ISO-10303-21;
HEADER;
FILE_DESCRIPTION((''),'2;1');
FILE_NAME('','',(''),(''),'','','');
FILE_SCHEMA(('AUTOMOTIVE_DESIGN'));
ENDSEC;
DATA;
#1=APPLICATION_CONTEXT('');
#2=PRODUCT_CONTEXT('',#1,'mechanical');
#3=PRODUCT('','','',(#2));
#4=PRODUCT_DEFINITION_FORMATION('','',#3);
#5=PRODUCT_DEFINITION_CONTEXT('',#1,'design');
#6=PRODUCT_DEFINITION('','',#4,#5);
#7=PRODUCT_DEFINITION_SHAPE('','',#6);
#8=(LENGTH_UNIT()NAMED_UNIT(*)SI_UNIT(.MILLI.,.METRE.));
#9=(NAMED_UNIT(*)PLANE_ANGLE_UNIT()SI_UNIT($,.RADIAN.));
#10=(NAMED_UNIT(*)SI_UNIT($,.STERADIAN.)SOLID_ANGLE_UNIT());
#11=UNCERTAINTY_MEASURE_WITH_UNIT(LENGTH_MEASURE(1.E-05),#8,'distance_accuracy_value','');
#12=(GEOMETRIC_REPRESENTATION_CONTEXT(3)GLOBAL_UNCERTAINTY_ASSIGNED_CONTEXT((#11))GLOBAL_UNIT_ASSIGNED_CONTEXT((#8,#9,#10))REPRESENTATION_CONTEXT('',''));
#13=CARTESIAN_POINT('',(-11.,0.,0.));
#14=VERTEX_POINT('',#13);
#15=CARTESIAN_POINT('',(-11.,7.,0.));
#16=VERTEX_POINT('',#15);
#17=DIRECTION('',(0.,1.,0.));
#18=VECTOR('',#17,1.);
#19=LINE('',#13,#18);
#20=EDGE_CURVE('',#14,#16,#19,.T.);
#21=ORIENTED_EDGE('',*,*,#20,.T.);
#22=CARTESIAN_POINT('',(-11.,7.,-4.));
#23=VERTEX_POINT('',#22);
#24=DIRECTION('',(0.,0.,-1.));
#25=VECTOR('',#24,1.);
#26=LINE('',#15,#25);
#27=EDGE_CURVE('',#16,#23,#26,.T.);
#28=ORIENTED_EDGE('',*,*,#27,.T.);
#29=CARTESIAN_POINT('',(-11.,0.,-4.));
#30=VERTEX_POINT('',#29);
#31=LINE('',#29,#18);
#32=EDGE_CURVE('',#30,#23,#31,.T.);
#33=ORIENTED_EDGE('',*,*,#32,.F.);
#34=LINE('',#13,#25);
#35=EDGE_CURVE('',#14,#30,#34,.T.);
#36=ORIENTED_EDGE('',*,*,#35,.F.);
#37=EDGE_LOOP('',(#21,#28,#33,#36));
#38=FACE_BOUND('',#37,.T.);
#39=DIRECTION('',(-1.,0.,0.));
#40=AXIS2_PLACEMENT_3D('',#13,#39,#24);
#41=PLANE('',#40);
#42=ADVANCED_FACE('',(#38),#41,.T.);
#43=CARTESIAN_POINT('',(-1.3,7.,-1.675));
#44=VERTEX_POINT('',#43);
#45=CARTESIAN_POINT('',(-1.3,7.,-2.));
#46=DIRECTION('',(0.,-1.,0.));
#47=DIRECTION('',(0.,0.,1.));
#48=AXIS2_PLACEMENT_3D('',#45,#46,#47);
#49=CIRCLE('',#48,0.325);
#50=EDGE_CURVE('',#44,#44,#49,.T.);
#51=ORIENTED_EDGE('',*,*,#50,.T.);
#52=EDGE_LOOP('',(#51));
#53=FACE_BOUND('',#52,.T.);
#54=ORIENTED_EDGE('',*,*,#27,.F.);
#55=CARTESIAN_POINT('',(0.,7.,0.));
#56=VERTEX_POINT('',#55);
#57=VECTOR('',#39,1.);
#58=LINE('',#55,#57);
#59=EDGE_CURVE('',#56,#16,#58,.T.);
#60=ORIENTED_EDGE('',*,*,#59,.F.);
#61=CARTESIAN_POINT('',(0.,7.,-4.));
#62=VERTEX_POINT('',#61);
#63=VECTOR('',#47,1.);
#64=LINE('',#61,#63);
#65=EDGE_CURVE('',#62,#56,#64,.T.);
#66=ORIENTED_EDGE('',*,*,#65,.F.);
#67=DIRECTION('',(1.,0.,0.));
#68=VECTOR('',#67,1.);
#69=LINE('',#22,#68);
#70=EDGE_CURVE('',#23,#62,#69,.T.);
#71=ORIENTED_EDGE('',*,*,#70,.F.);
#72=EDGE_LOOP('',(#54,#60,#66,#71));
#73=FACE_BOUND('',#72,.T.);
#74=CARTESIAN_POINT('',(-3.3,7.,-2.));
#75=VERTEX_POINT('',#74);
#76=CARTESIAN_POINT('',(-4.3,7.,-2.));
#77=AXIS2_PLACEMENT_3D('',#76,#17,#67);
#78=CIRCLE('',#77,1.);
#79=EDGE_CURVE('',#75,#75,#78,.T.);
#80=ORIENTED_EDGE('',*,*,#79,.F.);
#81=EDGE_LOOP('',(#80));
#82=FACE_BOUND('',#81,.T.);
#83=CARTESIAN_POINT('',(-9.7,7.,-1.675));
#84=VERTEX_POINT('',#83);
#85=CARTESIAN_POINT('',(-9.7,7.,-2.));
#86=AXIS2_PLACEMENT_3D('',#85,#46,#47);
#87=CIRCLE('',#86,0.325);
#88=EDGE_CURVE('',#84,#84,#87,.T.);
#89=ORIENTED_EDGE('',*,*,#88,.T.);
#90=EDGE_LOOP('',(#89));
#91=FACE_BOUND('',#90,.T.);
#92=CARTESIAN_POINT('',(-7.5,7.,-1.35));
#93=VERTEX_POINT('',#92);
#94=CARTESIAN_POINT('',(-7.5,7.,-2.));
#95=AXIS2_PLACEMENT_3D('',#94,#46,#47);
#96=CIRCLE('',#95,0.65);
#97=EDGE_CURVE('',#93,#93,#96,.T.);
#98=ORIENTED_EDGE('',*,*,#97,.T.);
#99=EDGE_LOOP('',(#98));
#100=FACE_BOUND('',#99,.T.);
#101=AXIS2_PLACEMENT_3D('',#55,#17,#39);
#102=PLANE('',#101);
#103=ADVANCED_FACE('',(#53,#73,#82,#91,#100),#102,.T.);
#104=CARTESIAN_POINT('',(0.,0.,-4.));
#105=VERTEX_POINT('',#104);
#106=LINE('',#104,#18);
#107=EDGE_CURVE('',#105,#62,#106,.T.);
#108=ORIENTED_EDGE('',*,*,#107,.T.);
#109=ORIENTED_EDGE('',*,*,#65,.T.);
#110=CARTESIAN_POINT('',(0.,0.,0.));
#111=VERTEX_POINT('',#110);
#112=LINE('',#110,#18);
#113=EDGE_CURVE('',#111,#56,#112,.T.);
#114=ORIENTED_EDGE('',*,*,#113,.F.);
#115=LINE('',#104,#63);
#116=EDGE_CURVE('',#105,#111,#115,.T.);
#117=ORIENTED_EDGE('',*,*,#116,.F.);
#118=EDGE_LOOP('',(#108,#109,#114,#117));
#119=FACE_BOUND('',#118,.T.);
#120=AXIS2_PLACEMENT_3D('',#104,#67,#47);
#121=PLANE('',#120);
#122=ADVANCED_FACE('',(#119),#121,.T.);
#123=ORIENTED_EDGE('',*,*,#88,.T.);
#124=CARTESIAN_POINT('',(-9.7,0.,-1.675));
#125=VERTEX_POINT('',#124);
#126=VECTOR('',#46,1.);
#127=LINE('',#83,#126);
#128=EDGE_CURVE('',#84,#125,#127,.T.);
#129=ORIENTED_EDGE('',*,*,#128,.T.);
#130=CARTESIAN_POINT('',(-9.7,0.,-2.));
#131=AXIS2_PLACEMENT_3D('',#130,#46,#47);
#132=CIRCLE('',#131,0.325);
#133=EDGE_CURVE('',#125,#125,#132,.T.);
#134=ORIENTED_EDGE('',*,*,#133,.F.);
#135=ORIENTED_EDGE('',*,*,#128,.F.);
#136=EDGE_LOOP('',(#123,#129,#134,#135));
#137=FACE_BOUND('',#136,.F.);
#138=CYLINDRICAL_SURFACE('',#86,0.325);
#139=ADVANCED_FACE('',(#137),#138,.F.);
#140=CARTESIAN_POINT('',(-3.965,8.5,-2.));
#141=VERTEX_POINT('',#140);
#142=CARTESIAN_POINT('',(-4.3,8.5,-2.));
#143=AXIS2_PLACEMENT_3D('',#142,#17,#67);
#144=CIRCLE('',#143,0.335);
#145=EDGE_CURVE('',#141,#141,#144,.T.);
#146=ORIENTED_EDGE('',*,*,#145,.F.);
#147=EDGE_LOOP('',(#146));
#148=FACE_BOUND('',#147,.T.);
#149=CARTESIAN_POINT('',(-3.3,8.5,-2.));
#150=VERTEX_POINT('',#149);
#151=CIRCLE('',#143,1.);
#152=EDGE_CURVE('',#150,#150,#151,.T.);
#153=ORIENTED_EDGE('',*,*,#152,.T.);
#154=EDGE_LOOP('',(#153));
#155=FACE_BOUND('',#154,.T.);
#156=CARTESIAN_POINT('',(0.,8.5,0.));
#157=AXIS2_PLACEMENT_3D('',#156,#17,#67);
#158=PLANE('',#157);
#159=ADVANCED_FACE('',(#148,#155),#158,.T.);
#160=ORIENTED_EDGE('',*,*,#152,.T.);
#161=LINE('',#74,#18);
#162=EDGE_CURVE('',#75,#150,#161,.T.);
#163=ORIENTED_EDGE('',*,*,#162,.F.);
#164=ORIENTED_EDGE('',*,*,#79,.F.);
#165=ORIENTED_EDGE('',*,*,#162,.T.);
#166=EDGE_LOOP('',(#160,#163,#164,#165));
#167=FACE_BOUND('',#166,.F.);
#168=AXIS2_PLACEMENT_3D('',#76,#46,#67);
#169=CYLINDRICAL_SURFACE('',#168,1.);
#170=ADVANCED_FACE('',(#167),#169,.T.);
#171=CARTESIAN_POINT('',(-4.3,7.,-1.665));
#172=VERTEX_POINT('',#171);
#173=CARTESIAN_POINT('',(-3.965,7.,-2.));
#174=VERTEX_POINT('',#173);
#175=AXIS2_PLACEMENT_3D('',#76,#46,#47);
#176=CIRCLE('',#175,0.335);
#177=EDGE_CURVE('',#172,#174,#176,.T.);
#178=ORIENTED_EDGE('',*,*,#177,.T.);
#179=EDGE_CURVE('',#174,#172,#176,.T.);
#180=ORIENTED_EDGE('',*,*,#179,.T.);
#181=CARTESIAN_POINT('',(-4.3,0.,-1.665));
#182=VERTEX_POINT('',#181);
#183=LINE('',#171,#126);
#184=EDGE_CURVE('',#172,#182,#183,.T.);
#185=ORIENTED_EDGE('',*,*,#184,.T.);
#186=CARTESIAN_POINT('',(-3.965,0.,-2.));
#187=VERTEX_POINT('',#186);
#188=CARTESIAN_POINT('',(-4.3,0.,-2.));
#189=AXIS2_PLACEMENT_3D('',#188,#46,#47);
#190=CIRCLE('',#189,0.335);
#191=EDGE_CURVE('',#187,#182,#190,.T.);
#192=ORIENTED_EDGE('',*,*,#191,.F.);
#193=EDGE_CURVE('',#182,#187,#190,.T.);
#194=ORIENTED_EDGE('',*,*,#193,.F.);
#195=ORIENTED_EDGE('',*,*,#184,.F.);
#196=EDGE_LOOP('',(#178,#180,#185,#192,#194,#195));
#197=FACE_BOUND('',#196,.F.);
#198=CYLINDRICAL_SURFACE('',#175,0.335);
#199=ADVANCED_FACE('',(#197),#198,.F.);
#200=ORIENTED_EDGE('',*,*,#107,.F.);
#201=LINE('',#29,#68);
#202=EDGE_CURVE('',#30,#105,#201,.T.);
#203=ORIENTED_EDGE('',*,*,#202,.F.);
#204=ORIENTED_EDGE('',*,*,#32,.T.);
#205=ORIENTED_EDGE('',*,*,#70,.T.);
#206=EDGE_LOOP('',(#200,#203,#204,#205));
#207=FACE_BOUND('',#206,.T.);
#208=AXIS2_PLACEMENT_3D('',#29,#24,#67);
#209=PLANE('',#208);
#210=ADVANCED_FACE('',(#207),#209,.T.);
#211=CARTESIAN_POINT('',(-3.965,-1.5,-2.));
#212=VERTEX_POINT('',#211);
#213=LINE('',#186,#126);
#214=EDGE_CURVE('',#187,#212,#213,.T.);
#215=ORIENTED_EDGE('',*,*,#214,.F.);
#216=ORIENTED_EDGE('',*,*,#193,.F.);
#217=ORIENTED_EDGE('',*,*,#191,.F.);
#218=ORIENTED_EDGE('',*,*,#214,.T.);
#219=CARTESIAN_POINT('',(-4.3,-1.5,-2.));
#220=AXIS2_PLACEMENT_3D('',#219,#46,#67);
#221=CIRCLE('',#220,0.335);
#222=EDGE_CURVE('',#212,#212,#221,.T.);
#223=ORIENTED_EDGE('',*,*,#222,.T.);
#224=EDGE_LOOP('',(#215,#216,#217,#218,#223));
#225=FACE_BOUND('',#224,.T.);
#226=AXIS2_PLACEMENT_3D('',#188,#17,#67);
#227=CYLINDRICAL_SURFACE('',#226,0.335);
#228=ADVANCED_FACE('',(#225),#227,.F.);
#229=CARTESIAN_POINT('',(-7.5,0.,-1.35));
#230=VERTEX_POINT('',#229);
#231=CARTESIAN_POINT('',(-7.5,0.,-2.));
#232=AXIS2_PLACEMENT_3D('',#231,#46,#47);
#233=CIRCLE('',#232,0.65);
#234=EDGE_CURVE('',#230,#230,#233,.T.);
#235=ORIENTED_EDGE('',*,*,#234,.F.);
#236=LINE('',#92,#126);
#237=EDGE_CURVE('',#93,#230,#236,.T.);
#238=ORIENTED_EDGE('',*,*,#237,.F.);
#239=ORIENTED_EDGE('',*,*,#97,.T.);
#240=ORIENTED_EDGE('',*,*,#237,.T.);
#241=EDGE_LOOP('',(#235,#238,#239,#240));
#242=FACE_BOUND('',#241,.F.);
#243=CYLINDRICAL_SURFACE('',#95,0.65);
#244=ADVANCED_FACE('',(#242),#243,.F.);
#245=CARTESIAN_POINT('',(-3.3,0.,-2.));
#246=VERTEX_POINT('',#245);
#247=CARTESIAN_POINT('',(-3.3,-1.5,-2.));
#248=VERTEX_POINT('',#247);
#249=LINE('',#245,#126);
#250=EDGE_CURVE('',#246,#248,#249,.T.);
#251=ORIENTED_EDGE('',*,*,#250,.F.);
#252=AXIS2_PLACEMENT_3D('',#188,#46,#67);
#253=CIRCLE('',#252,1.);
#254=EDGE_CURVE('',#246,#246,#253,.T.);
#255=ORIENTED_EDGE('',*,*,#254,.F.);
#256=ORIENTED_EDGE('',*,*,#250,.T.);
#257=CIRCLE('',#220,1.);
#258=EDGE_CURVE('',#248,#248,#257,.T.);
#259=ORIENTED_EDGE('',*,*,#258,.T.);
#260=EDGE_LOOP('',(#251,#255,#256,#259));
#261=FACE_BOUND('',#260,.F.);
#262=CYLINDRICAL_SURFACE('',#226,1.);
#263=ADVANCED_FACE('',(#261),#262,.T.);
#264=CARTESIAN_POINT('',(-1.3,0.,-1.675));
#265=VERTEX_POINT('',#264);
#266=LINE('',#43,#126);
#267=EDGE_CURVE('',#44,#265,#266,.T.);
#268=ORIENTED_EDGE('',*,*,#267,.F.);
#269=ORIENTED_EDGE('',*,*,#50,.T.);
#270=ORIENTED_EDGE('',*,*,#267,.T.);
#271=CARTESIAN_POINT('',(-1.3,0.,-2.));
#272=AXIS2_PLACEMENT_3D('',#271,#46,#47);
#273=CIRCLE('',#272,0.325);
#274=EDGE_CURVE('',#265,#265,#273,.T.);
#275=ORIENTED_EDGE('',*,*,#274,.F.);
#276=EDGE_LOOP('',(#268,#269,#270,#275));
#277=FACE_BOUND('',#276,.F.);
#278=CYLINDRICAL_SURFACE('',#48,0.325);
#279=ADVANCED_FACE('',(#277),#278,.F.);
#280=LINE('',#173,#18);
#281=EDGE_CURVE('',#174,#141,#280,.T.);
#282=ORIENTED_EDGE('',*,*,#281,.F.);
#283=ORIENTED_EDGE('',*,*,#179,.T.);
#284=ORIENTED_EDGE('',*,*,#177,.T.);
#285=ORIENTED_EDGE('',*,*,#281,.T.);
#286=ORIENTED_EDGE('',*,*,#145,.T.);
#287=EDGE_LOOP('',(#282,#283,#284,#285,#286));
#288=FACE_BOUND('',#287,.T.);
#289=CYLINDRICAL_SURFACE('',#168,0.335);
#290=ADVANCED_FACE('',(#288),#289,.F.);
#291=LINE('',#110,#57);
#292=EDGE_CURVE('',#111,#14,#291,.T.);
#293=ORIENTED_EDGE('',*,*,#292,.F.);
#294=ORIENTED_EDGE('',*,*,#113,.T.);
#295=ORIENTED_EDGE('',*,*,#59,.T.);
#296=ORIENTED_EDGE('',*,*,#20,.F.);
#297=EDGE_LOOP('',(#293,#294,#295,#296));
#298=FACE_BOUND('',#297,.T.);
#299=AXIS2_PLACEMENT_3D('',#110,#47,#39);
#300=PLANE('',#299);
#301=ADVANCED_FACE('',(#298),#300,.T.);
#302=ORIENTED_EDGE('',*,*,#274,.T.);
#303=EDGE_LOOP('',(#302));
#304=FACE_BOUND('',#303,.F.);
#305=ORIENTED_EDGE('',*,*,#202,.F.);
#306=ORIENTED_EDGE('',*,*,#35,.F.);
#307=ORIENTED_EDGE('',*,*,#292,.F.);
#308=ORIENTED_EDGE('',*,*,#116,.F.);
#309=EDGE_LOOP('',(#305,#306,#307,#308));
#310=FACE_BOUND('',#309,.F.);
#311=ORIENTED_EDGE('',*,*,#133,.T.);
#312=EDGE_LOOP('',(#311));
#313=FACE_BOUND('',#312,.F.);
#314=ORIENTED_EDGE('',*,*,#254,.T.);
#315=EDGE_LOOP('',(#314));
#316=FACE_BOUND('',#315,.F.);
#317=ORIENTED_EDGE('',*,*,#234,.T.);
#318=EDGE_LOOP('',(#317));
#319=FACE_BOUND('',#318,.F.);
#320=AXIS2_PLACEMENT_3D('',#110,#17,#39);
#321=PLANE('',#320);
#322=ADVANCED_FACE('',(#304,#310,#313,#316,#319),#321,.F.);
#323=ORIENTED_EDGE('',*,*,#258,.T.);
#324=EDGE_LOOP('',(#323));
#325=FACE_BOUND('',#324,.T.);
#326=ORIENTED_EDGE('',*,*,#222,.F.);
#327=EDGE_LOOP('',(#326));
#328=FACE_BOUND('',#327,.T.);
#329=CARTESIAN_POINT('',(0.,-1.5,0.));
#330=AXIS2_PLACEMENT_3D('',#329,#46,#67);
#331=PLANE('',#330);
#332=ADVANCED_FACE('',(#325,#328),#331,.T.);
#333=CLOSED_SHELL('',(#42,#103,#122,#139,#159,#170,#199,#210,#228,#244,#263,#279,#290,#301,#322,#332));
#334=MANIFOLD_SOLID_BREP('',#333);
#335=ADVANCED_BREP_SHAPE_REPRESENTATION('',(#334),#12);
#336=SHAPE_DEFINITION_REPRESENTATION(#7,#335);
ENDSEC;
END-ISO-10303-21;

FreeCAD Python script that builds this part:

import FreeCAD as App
import Part
import Sketcher
from FreeCAD import Vector


def add_polygon(sketch, points):
    """Adds a closed chain of lines whose ends are joined by coincident constraints."""
    first, n = sketch.GeometryCount, len(points)
    for a, b in zip(points, points[1:] + points[:1]):
        sketch.addGeometry(Part.LineSegment(App.Vector(*a, 0), App.Vector(*b, 0)), False)
    for i in range(n):
        sketch.addConstraint(Sketcher.Constraint("Coincident", first + i, 2, first + (i + 1) % n, 1))

doc = App.newDocument("Part")
params = doc.addObject("Spreadsheet::Sheet", "Params")
for row, (alias, value) in enumerate([
    ("sketch1_width", "11 mm"),
    ("sketch1_height", "4 mm"),
    ("pad1_length", "7 mm"),
    ("sketch2_diameter", "0.65 mm"),
    ("hole_diameter", "0.65 mm"),
    ("sketch3_diameter", "1.3 mm"),
    ("hole2_diameter", "1.3 mm"),
    ("sketch4_diameter", "0.67 mm"),
    ("hole3_diameter", "0.67 mm"),
    ("sketch5_diameter", "2 mm"),
    ("sketch5_diameter2", "0.67 mm"),
    ("pad2_length", "1.5 mm"),
    ("sketch6_diameter", "2 mm"),
    ("sketch6_diameter2", "0.67 mm"),
    ("pad3_length", "1.5 mm"),
], start=1):
    params.set(f"A{row}", alias)
    params.set(f"B{row}", "=" + value)
    params.setAlias(f"B{row}", alias)

body = doc.addObject("PartDesign::Body", "Body")

sketch1 = body.newObject("Sketcher::SketchObject", "Sketch")
sketch1.AttachmentSupport = (doc.getObject("XZ_Plane"), [""])
sketch1.MapMode = "FlatFace"
add_polygon(sketch1, [(-11, 0), (0, 0), (0, -4), (-11, -4)])
sketch1.addConstraint(Sketcher.Constraint("Horizontal", 0))
sketch1.addConstraint(Sketcher.Constraint("Vertical", 1))
sketch1.addConstraint(Sketcher.Constraint("Horizontal", 2))
sketch1.addConstraint(Sketcher.Constraint("Vertical", 3))
sketch1.addConstraint(Sketcher.Constraint("Coincident", 0, 2, -1, 1))
sketch1.addConstraint(Sketcher.Constraint("DistanceX", 0, 1, 0, 2, 11.0))
sketch1.addConstraint(Sketcher.Constraint("DistanceY", 1, 2, 1, 1, 4.0))
sketch1.setExpression("Constraints[9]", "Params.sketch1_width")
sketch1.setExpression("Constraints[10]", "Params.sketch1_height")
pad1 = body.newObject("PartDesign::Pad", "Pad")
pad1.Profile = sketch1
pad1.setExpression("Length", "Params.pad1_length")
pad1.Reversed = True

sketch2 = body.newObject("Sketcher::SketchObject", "Sketch001")
sketch2.AttachmentSupport = (doc.getObject("XZ_Plane"), [""])
sketch2.MapMode = "FlatFace"
sketch2.AttachmentOffset = App.Placement(Vector(0, 0, -7), App.Rotation())
sketch2.addGeometry(Part.Circle(Vector(-9.7, -2, 0), Vector(0, 0, 1), 0.33), False)
sketch2.addGeometry(Part.Circle(Vector(-1.3, -2, 0), Vector(0, 0, 1), 0.33), False)
sketch2.addConstraint(Sketcher.Constraint("Equal", 0, 1))
sketch2.addConstraint(Sketcher.Constraint("Horizontal", 0, 3, 1, 3))
sketch2.addConstraint(Sketcher.Constraint("Diameter", 0, 0.65))
sketch2.addConstraint(Sketcher.Constraint("DistanceY", 0, 3, -1, 1, 2.0))
sketch2.addConstraint(Sketcher.Constraint("DistanceX", 0, 3, -1, 1, 9.7))
sketch2.addConstraint(Sketcher.Constraint("DistanceX", 1, 3, -1, 1, 1.3))
sketch2.setExpression("Constraints[2]", "Params.sketch2_diameter")
doc.recompute()
hole = body.newObject("PartDesign::Hole", "Hole")
hole.Profile = sketch2
hole.ThreadType = "None"
hole.setExpression("Diameter", "Params.hole_diameter")
hole.DepthType = "ThroughAll"
hole.Reversed = True

sketch3 = body.newObject("Sketcher::SketchObject", "Sketch002")
sketch3.AttachmentSupport = (doc.getObject("XZ_Plane"), [""])
sketch3.MapMode = "FlatFace"
sketch3.AttachmentOffset = App.Placement(Vector(0, 0, -7), App.Rotation())
sketch3.addGeometry(Part.Circle(Vector(-7.5, -2, 0), Vector(0, 0, 1), 0.7), False)
sketch3.addConstraint(Sketcher.Constraint("Diameter", 0, 1.3))
sketch3.addConstraint(Sketcher.Constraint("DistanceY", 0, 3, -1, 1, 2.0))
sketch3.addConstraint(Sketcher.Constraint("DistanceX", 0, 3, -1, 1, 7.5))
sketch3.setExpression("Constraints[0]", "Params.sketch3_diameter")
doc.recompute()
hole2 = body.newObject("PartDesign::Hole", "Hole001")
hole2.Profile = sketch3
hole2.ThreadType = "None"
hole2.setExpression("Diameter", "Params.hole2_diameter")
hole2.DepthType = "ThroughAll"
hole2.Reversed = True

sketch4 = body.newObject("Sketcher::SketchObject", "Sketch003")
sketch4.AttachmentSupport = (doc.getObject("XZ_Plane"), [""])
sketch4.MapMode = "FlatFace"
sketch4.AttachmentOffset = App.Placement(Vector(0, 0, -7), App.Rotation())
sketch4.addGeometry(Part.Circle(Vector(-4.3, -2, 0), Vector(0, 0, 1), 0.34), False)
sketch4.addConstraint(Sketcher.Constraint("Diameter", 0, 0.67))
sketch4.addConstraint(Sketcher.Constraint("DistanceY", 0, 3, -1, 1, 2.0))
sketch4.addConstraint(Sketcher.Constraint("DistanceX", 0, 3, -1, 1, 4.3))
sketch4.setExpression("Constraints[0]", "Params.sketch4_diameter")
doc.recompute()
hole3 = body.newObject("PartDesign::Hole", "Hole002")
hole3.Profile = sketch4
hole3.ThreadType = "None"
hole3.setExpression("Diameter", "Params.hole3_diameter")
hole3.DepthType = "ThroughAll"
hole3.Reversed = True

sketch5 = body.newObject("Sketcher::SketchObject", "Sketch004")
sketch5.AttachmentSupport = (doc.getObject("XZ_Plane"), [""])
sketch5.MapMode = "FlatFace"
sketch5.AttachmentOffset = App.Placement(Vector(0, 0, -7), App.Rotation())
sketch5.addGeometry(Part.Circle(Vector(-4.3, -2, 0), Vector(0, 0, 1), 1), False)
sketch5.addGeometry(Part.Circle(Vector(-4.3, -2, 0), Vector(0, 0, 1), 0.34), False)
sketch5.addConstraint(Sketcher.Constraint("Coincident", 1, 3, 0, 3))
sketch5.addConstraint(Sketcher.Constraint("Diameter", 0, 2.0))
sketch5.addConstraint(Sketcher.Constraint("DistanceY", 0, 3, -1, 1, 2.0))
sketch5.addConstraint(Sketcher.Constraint("Diameter", 1, 0.67))
sketch5.addConstraint(Sketcher.Constraint("DistanceX", 0, 3, -1, 1, 4.3))
sketch5.setExpression("Constraints[1]", "Params.sketch5_diameter")
sketch5.setExpression("Constraints[3]", "Params.sketch5_diameter2")
pad2 = body.newObject("PartDesign::Pad", "Pad001")
pad2.Profile = sketch5
pad2.setExpression("Length", "Params.pad2_length")
pad2.Reversed = True

sketch6 = body.newObject("Sketcher::SketchObject", "Sketch005")
sketch6.AttachmentSupport = (doc.getObject("XZ_Plane"), [""])
sketch6.MapMode = "FlatFace"
sketch6.addGeometry(Part.Circle(Vector(-4.3, -2, 0), Vector(0, 0, 1), 1), False)
sketch6.addGeometry(Part.Circle(Vector(-4.3, -2, 0), Vector(0, 0, 1), 0.34), False)
sketch6.addConstraint(Sketcher.Constraint("Coincident", 1, 3, 0, 3))
sketch6.addConstraint(Sketcher.Constraint("Diameter", 0, 2.0))
sketch6.addConstraint(Sketcher.Constraint("DistanceY", 0, 3, -1, 1, 2.0))
sketch6.addConstraint(Sketcher.Constraint("Diameter", 1, 0.67))
sketch6.addConstraint(Sketcher.Constraint("DistanceX", 0, 3, -1, 1, 4.3))
sketch6.setExpression("Constraints[1]", "Params.sketch6_diameter")
sketch6.setExpression("Constraints[3]", "Params.sketch6_diameter2")
pad3 = body.newObject("PartDesign::Pad", "Pad002")
pad3.Profile = sketch6
pad3.setExpression("Length", "Params.pad3_length")

doc.recompute()
